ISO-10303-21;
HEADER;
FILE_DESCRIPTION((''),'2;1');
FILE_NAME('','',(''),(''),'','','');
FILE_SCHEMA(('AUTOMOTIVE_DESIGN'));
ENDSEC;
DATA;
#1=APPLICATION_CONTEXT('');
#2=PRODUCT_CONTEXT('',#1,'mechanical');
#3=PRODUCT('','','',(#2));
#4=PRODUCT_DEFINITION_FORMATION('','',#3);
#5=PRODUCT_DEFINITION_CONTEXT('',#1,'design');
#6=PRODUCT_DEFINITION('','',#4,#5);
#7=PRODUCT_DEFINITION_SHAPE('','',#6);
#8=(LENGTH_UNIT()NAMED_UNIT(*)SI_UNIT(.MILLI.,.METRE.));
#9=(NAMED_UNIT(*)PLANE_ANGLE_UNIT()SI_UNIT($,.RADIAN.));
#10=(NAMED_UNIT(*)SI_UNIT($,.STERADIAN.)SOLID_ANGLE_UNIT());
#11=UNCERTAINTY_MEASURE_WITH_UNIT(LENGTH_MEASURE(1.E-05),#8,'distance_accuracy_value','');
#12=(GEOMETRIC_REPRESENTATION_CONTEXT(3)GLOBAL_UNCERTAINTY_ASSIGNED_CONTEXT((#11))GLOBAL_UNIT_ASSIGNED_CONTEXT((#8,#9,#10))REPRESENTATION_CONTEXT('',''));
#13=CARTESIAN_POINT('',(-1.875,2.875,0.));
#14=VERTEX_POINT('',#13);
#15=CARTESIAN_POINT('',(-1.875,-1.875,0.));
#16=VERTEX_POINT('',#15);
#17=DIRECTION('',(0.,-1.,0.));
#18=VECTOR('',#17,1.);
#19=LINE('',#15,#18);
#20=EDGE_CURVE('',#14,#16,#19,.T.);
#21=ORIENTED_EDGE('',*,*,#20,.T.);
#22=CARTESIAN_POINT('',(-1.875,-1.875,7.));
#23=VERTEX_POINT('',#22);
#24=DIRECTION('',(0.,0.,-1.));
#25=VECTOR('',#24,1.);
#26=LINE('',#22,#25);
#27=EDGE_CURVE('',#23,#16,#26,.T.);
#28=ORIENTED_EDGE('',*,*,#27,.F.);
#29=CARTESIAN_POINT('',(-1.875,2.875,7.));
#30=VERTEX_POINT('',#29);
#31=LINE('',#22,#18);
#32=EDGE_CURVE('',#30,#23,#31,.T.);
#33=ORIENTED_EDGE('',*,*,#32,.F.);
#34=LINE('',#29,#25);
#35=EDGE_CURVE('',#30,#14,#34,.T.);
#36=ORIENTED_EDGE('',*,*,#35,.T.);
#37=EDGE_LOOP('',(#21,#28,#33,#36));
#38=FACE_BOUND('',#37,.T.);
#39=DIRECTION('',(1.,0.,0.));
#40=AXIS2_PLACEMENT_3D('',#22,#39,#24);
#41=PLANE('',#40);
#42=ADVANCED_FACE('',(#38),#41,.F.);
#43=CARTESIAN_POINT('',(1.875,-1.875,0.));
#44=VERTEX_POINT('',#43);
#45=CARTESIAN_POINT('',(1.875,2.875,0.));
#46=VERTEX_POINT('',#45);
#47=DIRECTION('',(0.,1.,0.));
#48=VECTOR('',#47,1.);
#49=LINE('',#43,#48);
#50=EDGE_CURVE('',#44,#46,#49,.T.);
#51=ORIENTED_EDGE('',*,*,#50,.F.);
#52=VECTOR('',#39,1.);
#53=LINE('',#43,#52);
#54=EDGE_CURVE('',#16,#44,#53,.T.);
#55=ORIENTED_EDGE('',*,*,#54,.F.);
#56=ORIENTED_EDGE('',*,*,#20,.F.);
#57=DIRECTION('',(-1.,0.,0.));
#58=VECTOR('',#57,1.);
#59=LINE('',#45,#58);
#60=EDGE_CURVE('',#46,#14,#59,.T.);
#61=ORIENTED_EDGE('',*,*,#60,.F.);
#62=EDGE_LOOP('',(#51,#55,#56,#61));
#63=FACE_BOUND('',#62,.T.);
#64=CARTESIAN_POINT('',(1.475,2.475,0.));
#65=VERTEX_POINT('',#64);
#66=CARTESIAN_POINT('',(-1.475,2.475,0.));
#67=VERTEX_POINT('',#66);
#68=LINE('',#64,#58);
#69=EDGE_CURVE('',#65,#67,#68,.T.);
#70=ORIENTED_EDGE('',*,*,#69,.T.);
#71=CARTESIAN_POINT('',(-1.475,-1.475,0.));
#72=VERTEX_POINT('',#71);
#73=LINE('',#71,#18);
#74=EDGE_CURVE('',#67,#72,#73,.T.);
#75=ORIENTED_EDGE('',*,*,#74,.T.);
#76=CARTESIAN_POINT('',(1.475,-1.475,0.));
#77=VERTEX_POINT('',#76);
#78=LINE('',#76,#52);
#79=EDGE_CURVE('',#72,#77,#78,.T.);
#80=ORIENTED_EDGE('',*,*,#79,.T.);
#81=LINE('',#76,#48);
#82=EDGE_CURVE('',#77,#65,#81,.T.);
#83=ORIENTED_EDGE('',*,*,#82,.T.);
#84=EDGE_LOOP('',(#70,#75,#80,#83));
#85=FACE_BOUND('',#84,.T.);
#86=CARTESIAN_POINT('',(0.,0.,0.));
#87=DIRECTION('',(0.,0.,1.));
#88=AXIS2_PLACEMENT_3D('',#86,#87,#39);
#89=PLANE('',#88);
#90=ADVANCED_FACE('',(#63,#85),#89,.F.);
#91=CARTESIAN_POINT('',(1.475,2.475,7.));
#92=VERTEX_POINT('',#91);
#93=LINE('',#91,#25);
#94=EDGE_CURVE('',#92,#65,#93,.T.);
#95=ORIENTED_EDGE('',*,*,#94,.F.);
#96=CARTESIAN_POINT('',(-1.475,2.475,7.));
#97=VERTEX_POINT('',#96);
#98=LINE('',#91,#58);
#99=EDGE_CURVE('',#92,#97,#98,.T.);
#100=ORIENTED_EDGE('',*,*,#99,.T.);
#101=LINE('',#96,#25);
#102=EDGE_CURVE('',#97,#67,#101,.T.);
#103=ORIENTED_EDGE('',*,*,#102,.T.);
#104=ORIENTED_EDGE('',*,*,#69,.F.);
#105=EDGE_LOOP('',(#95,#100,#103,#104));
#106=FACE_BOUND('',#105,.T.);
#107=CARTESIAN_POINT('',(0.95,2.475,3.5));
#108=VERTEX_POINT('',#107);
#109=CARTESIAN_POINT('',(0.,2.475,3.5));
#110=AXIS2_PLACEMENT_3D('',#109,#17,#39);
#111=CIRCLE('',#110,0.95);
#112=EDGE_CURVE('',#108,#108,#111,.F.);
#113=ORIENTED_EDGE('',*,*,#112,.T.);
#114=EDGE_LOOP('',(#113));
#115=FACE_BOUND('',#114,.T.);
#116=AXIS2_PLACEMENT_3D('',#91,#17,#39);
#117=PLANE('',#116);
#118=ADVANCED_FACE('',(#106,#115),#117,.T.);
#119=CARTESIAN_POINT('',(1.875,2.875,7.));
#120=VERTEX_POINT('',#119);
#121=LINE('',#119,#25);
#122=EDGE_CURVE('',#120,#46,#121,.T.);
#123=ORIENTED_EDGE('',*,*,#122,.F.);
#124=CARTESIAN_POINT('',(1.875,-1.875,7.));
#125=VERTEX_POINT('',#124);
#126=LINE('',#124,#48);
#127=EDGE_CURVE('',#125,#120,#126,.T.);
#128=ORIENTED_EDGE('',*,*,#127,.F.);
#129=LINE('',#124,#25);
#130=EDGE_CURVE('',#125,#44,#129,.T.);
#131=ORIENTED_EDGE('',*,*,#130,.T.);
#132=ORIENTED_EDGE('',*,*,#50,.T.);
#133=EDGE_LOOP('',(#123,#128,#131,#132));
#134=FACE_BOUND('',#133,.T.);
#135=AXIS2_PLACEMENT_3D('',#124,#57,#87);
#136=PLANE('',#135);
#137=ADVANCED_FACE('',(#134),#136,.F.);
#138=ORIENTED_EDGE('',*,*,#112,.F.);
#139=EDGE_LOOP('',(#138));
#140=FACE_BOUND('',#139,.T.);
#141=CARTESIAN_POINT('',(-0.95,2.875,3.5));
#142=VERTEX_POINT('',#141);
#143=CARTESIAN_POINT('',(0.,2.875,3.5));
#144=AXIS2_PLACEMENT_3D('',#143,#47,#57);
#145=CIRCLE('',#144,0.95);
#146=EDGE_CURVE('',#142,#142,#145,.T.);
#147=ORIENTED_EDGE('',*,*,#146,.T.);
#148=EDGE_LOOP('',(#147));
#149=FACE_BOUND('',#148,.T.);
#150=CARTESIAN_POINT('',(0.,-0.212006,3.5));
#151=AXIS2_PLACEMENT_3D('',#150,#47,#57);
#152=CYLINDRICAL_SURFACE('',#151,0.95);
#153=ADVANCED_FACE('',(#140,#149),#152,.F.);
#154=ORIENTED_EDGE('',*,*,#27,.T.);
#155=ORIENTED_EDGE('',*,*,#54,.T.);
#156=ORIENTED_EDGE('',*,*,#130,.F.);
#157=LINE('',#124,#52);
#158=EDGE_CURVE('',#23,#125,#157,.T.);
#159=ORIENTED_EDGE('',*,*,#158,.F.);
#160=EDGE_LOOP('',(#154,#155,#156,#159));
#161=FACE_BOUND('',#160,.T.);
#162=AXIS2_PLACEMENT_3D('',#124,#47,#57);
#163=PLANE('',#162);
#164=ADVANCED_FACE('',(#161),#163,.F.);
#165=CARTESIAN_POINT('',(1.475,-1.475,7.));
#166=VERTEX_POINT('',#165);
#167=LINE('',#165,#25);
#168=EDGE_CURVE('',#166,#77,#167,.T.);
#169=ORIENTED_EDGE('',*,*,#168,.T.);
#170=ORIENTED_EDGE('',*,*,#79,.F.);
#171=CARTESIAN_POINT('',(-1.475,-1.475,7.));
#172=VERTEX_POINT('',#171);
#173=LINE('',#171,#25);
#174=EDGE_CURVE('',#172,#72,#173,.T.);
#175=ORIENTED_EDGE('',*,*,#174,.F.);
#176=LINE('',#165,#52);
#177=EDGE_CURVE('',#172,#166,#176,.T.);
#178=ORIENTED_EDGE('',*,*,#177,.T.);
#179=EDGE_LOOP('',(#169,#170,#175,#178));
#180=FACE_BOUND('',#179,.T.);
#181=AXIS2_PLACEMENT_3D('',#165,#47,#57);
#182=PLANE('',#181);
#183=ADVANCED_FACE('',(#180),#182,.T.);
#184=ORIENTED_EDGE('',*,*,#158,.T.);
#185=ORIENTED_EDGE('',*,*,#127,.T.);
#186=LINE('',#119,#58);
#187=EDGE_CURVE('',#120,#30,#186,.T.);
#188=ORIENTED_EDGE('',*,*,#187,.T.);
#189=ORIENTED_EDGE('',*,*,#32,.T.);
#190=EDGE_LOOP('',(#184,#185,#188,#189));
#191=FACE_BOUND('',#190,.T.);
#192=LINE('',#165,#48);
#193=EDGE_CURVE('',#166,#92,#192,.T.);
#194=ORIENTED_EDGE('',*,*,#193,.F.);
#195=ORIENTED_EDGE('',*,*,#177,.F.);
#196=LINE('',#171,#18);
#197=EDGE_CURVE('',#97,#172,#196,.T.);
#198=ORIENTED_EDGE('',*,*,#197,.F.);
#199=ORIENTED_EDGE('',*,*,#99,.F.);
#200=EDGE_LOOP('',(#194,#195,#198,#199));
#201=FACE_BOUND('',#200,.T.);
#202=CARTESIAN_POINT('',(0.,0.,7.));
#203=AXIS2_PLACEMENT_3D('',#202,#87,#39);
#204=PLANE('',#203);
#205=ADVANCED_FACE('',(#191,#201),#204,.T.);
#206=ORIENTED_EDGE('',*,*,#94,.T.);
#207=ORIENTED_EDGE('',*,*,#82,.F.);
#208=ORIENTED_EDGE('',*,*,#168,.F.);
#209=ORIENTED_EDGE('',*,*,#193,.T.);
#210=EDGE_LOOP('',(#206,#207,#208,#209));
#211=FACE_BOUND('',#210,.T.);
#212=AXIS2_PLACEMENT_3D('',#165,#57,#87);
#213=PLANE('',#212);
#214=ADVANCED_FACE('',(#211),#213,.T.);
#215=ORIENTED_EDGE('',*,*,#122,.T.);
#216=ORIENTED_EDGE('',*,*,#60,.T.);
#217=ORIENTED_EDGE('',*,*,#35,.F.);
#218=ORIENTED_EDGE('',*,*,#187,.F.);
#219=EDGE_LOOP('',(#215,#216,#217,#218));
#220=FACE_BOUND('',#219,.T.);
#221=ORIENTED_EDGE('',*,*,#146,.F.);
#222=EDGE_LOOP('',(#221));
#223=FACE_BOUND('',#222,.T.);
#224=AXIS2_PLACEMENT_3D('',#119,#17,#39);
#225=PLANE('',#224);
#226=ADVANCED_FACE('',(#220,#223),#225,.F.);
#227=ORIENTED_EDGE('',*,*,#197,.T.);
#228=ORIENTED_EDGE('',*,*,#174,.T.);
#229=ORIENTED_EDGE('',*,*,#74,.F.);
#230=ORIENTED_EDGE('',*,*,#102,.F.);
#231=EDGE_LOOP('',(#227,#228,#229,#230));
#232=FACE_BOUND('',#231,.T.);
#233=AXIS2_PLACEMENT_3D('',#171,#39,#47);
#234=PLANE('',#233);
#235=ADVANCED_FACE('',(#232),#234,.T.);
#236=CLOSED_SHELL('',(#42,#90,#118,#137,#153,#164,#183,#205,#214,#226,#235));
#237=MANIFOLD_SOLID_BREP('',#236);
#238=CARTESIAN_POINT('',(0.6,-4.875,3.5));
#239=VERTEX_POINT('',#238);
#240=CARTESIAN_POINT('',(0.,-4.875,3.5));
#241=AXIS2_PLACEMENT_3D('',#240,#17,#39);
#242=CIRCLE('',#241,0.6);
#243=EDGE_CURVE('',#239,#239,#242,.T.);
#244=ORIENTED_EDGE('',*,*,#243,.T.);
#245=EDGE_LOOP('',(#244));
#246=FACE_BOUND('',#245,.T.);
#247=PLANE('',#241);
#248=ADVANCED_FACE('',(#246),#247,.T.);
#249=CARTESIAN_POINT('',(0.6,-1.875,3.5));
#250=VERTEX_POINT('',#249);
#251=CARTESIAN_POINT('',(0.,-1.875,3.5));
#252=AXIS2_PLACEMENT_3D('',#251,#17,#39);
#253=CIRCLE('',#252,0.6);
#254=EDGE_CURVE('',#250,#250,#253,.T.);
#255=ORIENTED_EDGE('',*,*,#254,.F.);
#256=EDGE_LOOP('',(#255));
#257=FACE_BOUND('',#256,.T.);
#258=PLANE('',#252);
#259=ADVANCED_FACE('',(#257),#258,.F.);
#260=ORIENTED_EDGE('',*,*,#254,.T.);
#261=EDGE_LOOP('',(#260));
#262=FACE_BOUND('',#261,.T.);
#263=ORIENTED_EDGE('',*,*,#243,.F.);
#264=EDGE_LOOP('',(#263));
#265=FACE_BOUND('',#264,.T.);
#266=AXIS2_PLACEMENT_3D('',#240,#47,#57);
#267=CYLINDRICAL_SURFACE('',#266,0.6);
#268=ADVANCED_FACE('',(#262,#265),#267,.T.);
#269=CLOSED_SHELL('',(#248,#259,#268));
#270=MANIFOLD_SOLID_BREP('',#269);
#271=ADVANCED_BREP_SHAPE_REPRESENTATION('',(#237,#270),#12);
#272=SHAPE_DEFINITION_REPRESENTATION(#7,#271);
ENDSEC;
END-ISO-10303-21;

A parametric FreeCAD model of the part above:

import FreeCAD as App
import Part
import Sketcher
from FreeCAD import Vector

doc = App.newDocument("Part")
body = doc.addObject("PartDesign::Body", "Body")

sketch1 = body.newObject("Sketcher::SketchObject", "Sketch")
sketch1.AttachmentSupport = (doc.getObject("XY_Plane"), [""])
sketch1.MapMode = "FlatFace"
sketch1.addGeometry(Part.LineSegment(Vector(-1.9, 2.9, 0), Vector(-1.9, -1.9, 0)), False)
sketch1.addGeometry(Part.LineSegment(Vector(-1.9, -1.9, 0), Vector(1.9, -1.9, 0)), False)
sketch1.addGeometry(Part.LineSegment(Vector(1.9, -1.9, 0), Vector(1.9, 2.9, 0)), False)
sketch1.addGeometry(Part.LineSegment(Vector(1.9, 2.9, 0), Vector(-1.9, 2.9, 0)), False)
sketch1.addGeometry(Part.LineSegment(Vector(1.5, -1.5, 0), Vector(-1.5, -1.5, 0)), False)
sketch1.addGeometry(Part.LineSegment(Vector(-1.5, -1.5, 0), Vector(-1.5, 2.5, 0)), False)
sketch1.addGeometry(Part.LineSegment(Vector(-1.5, 2.5, 0), Vector(1.5, 2.5, 0)), False)
sketch1.addGeometry(Part.LineSegment(Vector(1.5, 2.5, 0), Vector(1.5, -1.5, 0)), False)
sketch1.addConstraint(Sketcher.Constraint("Coincident", 0, 2, 1, 1))
sketch1.addConstraint(Sketcher.Constraint("Coincident", 1, 2, 2, 1))
sketch1.addConstraint(Sketcher.Constraint("Coincident", 2, 2, 3, 1))
sketch1.addConstraint(Sketcher.Constraint("Coincident", 3, 2, 0, 1))
sketch1.addConstraint(Sketcher.Constraint("Coincident", 4, 2, 5, 1))
sketch1.addConstraint(Sketcher.Constraint("Coincident", 5, 2, 6, 1))
sketch1.addConstraint(Sketcher.Constraint("Coincident", 6, 2, 7, 1))
sketch1.addConstraint(Sketcher.Constraint("Coincident", 7, 2, 4, 1))
sketch1.addConstraint(Sketcher.Constraint("Vertical", 0))
sketch1.addConstraint(Sketcher.Constraint("Horizontal", 1))
sketch1.addConstraint(Sketcher.Constraint("Vertical", 2))
sketch1.addConstraint(Sketcher.Constraint("Horizontal", 3))
sketch1.addConstraint(Sketcher.Constraint("Horizontal", 4))
sketch1.addConstraint(Sketcher.Constraint("Vertical", 5))
sketch1.addConstraint(Sketcher.Constraint("Horizontal", 6))
sketch1.addConstraint(Sketcher.Constraint("Vertical", 7))
sketch1.addConstraint(Sketcher.Constraint("DistanceX", 1, 1, 1, 2, 3.75))
sketch1.addConstraint(Sketcher.Constraint("DistanceX", 4, 2, 4, 1, 2.95))
sketch1.addConstraint(Sketcher.Constraint("DistanceY", 0, 2, 0, 1, 4.75))
sketch1.addConstraint(Sketcher.Constraint("DistanceY", 5, 1, 5, 2, 3.95))
sketch1.addConstraint(Sketcher.Constraint("DistanceX", 0, 2, 4, 2, 0.4))
sketch1.addConstraint(Sketcher.Constraint("DistanceY", 0, 2, 4, 2, 0.4))
sketch1.addConstraint(Sketcher.Constraint("DistanceX", 0, 2, -1, 1, 1.875))
sketch1.addConstraint(Sketcher.Constraint("DistanceY", 0, 2, -1, 1, 1.875))
pad1 = body.newObject("PartDesign::Pad", "Pad")
pad1.Profile = sketch1
pad1.Length = 7

sketch2 = body.newObject("Sketcher::SketchObject", "Sketch001")
sketch2.AttachmentSupport = (doc.getObject("XZ_Plane"), [""])
sketch2.MapMode = "FlatFace"
sketch2.AttachmentOffset = App.Placement(Vector(0, 0, -2.875), App.Rotation())
sketch2.addGeometry(Part.Circle(Vector(0, 3.5, 0), Vector(0, 0, 1), 0.9), False)
sketch2.addConstraint(Sketcher.Constraint("PointOnObject", 0, 3, -2))
sketch2.addConstraint(Sketcher.Constraint("Diameter", 0, 1.9))
sketch2.addConstraint(Sketcher.Constraint("DistanceY", -1, 1, 0, 3, 3.5))
pocket1 = body.newObject("PartDesign::Pocket", "Pocket")
pocket1.Profile = sketch2
pocket1.Length = 0.4
pocket1.Reversed = True
body2 = doc.addObject("PartDesign::Body", "Body001")

sketch3 = body2.newObject("Sketcher::SketchObject", "Sketch002")
sketch3.AttachmentSupport = (doc.getObject("XZ_Plane001"), [""])
sketch3.MapMode = "FlatFace"
sketch3.AttachmentOffset = App.Placement(Vector(0, 0, 1.875), App.Rotation())
sketch3.addGeometry(Part.Circle(Vector(0, 3.5, 0), Vector(0, 0, 1), 0.6), False)
sketch3.addConstraint(Sketcher.Constraint("PointOnObject", 0, 3, -2))
sketch3.addConstraint(Sketcher.Constraint("Diameter", 0, 1.2))
sketch3.addConstraint(Sketcher.Constraint("DistanceY", -1, 1, 0, 3, 3.5))
pad2 = body2.newObject("PartDesign::Pad", "Pad001")
pad2.Profile = sketch3
pad2.Length = 3

doc.recompute()
